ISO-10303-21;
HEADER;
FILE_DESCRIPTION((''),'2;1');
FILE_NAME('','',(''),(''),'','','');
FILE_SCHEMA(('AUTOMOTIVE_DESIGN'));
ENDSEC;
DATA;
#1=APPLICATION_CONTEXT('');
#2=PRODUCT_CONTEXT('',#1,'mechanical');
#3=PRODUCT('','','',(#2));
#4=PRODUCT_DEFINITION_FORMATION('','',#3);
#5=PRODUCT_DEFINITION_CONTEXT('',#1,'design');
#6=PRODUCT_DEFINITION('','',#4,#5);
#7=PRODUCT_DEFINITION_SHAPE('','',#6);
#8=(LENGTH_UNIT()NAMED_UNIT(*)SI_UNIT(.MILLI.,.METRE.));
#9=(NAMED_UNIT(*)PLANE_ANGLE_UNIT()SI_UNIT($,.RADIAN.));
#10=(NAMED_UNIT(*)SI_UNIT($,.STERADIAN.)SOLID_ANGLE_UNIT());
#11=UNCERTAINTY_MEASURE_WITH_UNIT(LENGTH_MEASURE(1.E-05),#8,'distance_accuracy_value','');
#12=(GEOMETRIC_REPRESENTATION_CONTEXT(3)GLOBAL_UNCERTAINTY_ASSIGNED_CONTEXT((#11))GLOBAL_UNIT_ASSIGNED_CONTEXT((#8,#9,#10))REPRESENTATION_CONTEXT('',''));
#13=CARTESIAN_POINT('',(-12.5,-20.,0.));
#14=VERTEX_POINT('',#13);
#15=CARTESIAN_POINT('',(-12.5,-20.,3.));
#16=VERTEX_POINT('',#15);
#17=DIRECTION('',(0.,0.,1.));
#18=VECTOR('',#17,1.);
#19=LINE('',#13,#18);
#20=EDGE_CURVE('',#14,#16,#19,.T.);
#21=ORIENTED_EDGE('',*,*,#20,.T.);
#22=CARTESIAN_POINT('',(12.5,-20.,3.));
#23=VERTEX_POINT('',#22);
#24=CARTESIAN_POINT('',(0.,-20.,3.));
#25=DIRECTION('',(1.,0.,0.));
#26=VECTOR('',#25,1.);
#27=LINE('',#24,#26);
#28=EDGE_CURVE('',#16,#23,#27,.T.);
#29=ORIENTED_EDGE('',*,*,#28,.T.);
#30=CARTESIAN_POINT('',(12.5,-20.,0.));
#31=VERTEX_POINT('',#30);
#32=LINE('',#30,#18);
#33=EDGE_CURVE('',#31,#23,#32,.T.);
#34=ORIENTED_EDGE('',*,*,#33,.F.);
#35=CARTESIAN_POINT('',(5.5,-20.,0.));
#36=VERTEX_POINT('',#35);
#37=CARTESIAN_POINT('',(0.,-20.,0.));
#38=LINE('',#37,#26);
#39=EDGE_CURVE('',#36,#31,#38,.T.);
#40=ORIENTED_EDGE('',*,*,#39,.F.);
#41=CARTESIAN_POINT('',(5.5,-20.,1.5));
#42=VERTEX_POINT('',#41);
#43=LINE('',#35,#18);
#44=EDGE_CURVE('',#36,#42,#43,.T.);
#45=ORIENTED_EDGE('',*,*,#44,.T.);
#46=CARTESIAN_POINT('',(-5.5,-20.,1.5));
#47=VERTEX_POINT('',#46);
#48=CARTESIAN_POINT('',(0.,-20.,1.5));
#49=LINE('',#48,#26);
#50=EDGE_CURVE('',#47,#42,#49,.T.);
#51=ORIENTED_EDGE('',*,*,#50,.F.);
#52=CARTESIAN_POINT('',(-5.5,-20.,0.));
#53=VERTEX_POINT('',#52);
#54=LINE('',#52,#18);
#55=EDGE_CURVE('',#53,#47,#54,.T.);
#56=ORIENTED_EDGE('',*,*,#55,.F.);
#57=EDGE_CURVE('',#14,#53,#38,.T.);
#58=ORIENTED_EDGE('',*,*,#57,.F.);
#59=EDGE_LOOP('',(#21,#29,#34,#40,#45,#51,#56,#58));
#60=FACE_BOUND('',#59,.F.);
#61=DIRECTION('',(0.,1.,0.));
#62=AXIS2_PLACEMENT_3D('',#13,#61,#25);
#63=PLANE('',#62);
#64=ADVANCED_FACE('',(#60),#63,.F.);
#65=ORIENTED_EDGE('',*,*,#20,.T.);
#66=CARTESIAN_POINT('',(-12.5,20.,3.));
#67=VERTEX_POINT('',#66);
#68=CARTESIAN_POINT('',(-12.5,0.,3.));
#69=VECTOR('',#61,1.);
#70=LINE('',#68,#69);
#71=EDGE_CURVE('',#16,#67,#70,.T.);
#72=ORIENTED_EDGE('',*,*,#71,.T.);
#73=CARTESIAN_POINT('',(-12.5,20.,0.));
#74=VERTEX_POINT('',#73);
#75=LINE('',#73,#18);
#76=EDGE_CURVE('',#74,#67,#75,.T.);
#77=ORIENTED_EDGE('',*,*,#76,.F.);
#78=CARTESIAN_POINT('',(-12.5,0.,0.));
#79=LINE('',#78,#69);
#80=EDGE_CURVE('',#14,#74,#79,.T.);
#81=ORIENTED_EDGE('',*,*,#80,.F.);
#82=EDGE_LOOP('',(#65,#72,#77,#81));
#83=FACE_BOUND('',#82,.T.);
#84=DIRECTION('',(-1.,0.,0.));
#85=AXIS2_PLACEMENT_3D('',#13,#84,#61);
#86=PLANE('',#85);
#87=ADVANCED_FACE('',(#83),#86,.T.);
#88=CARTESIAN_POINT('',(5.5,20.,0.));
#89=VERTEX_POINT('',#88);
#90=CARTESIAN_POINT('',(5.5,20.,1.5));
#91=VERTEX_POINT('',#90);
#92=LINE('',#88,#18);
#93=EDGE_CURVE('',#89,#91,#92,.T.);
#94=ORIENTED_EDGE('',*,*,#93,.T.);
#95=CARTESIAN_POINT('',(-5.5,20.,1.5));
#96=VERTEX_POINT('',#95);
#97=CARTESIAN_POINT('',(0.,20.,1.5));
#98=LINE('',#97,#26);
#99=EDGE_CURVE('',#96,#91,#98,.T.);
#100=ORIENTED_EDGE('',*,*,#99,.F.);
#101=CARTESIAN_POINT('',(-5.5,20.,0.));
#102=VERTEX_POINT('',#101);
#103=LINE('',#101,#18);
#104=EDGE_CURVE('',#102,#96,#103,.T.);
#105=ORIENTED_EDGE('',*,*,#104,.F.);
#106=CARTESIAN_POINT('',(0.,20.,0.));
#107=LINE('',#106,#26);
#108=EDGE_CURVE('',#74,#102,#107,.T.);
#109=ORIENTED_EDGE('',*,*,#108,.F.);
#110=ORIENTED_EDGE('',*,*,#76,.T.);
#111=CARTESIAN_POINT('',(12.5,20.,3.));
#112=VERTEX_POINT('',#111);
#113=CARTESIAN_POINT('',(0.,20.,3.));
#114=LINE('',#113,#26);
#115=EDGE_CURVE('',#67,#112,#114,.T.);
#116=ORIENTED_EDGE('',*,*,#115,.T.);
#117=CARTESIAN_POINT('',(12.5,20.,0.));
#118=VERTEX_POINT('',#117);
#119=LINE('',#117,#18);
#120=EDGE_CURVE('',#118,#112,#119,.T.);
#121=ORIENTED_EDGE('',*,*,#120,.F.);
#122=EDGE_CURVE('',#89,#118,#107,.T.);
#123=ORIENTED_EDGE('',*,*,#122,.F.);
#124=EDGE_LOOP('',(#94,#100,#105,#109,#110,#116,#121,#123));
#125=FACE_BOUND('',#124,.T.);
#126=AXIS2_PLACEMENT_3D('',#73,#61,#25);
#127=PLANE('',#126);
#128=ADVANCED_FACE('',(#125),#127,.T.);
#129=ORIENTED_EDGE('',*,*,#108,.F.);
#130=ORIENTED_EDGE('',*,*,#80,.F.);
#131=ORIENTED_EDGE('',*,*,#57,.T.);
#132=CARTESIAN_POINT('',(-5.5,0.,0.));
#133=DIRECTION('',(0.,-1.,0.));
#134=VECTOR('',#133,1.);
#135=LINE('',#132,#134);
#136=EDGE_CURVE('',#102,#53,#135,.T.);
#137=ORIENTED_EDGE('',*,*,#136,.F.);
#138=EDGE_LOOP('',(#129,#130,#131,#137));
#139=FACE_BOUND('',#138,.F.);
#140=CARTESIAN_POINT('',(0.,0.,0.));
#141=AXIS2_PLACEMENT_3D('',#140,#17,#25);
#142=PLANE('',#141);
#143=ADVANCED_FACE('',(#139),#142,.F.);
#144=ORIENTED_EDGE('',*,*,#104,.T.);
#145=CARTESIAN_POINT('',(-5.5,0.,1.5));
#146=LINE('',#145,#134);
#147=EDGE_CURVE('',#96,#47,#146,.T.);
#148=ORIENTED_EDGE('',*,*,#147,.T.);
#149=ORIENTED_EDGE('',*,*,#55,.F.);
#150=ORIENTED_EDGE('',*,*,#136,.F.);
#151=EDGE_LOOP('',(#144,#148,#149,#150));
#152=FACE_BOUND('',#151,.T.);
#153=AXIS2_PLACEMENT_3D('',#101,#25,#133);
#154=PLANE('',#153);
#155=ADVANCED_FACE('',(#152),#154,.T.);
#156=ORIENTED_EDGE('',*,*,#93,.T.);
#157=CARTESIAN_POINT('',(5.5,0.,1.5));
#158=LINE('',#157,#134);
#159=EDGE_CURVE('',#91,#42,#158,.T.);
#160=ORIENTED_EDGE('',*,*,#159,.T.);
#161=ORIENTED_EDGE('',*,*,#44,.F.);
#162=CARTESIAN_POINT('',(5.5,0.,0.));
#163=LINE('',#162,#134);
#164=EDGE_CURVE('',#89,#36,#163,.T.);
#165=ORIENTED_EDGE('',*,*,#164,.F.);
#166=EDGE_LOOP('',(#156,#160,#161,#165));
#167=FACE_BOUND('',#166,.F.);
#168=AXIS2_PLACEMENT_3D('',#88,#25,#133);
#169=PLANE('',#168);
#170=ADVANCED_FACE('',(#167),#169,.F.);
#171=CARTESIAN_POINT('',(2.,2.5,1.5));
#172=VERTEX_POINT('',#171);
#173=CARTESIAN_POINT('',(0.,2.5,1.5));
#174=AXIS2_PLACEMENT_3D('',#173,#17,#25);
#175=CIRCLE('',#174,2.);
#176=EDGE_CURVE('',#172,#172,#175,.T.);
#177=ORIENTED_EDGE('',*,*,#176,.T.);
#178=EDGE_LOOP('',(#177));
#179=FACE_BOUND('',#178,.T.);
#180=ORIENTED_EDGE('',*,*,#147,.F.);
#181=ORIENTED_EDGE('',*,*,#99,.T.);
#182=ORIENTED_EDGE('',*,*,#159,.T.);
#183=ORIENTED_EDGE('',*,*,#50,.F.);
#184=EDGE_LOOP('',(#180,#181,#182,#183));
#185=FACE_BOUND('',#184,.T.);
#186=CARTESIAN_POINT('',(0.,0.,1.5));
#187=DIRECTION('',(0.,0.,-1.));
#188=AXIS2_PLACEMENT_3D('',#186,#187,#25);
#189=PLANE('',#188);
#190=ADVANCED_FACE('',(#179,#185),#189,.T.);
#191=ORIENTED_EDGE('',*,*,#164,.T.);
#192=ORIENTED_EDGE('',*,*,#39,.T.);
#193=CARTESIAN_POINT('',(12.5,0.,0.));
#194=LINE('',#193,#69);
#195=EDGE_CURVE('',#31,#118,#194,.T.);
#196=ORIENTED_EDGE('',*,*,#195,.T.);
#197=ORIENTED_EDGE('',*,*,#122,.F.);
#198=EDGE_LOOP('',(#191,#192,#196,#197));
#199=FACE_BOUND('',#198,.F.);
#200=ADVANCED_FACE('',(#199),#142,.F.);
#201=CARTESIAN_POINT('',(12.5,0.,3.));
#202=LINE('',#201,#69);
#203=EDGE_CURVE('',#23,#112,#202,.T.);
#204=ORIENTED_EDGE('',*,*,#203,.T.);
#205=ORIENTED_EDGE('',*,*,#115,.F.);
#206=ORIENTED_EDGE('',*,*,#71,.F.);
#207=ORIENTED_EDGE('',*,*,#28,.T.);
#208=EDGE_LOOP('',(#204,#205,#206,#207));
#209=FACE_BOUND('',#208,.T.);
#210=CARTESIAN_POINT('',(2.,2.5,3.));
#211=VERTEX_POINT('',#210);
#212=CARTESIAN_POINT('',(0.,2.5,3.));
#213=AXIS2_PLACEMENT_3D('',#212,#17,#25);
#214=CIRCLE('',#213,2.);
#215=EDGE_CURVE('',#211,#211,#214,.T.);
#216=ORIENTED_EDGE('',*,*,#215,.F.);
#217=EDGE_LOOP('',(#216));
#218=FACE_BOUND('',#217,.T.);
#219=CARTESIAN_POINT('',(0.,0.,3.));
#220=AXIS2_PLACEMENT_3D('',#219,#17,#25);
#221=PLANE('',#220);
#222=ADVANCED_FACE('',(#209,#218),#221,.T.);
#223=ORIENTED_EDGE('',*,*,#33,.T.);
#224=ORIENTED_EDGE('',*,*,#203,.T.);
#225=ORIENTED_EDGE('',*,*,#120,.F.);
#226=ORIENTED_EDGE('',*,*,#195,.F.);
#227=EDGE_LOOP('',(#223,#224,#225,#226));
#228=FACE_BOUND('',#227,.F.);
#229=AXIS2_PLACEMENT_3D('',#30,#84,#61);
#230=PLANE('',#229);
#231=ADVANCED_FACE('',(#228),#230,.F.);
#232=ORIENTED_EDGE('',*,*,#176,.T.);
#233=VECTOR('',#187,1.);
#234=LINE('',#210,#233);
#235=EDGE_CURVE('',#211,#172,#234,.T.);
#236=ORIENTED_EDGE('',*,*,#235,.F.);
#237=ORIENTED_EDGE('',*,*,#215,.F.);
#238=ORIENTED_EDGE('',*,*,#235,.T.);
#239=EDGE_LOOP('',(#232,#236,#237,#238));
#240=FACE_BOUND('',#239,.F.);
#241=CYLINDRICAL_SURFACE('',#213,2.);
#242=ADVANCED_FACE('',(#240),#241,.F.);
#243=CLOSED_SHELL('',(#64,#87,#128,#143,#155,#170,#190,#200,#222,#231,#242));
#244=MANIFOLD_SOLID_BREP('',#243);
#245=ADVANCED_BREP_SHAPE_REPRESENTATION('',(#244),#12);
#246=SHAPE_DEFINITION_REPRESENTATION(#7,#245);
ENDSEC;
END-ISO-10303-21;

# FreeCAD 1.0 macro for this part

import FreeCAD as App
import Part
import Sketcher
Q = App.Units.Quantity

doc = App.newDocument("Part")
body = doc.addObject("PartDesign::Body", "Body")

sketch1 = body.newObject("Sketcher::SketchObject", "Sketch")
sketch1.AttachmentSupport = (doc.getObject("XY_Plane"), [""])
sketch1.MapMode = "FlatFace"
sketch1.addGeometry([
    Part.LineSegment(App.Vector(-12, 20, 0), App.Vector(-12, -20, 0)),
    Part.LineSegment(App.Vector(-12, -20, 0), App.Vector(12, -20, 0)),
    Part.LineSegment(App.Vector(12, -20, 0), App.Vector(12, 20, 0)),
    Part.LineSegment(App.Vector(12, 20, 0), App.Vector(-12, 20, 0)),
], False)
sketch1.addConstraint([
    Sketcher.Constraint("Coincident", 0, 2, 1, 1),
    Sketcher.Constraint("Coincident", 1, 2, 2, 1),
    Sketcher.Constraint("Coincident", 2, 2, 3, 1),
    Sketcher.Constraint("Coincident", 3, 2, 0, 1),
    Sketcher.Constraint("Vertical", 0),
    Sketcher.Constraint("Horizontal", 1),
    Sketcher.Constraint("Vertical", 2),
    Sketcher.Constraint("Horizontal", 3),
    Sketcher.Constraint("Symmetric", 0, 2, 2, 2, -1, 1),
    Sketcher.Constraint("DistanceX", 1, 1, 1, 2, Q("25 mm")),
    Sketcher.Constraint("DistanceY", 0, 2, 0, 1, Q("40 mm")),
])
pad1 = body.newObject("PartDesign::Pad", "Pad")
pad1.Profile = sketch1
pad1.Length = 3

sketch2 = body.newObject("Sketcher::SketchObject", "Sketch001")
sketch2.AttachmentSupport = (doc.getObject("XY_Plane"), [""])
sketch2.MapMode = "FlatFace"
sketch2.addGeometry([
    Part.LineSegment(App.Vector(-6, -20, 0), App.Vector(-6, 20, 0)),
    Part.LineSegment(App.Vector(-6, 20, 0), App.Vector(6, 20, 0)),
    Part.LineSegment(App.Vector(6, 20, 0), App.Vector(6, -20, 0)),
    Part.LineSegment(App.Vector(6, -20, 0), App.Vector(-6, -20, 0)),
], False)
sketch2.addConstraint([
    Sketcher.Constraint("Coincident", 0, 2, 1, 1),
    Sketcher.Constraint("Coincident", 1, 2, 2, 1),
    Sketcher.Constraint("Coincident", 2, 2, 3, 1),
    Sketcher.Constraint("Coincident", 3, 2, 0, 1),
    Sketcher.Constraint("Vertical", 0),
    Sketcher.Constraint("Horizontal", 1),
    Sketcher.Constraint("Vertical", 2),
    Sketcher.Constraint("Horizontal", 3),
    Sketcher.Constraint("Symmetric", 0, 2, 2, 2, -1, 1),
    Sketcher.Constraint("DistanceX", 1, 1, 1, 2, Q("11 mm")),
    Sketcher.Constraint("DistanceY", 0, 1, 0, 2, Q("40 mm")),
])
pocket1 = body.newObject("PartDesign::Pocket", "Pocket")
pocket1.Profile = sketch2
pocket1.Length = 1.5
pocket1.Reversed = True

sketch3 = body.newObject("Sketcher::SketchObject", "Sketch002")
sketch3.AttachmentSupport = (doc.getObject("XY_Plane"), [""])
sketch3.MapMode = "FlatFace"
sketch3.AttachmentOffset = App.Placement(App.Vector(0, 0, 3), App.Rotation())
sketch3.addGeometry(Part.Circle(App.Vector(0, 2.5, 0), App.Vector(0, 0, 1), 2), False)
sketch3.addConstraint([
    Sketcher.Constraint("PointOnObject", 0, 3, -2),
    Sketcher.Constraint("Diameter", 0, Q("4 mm")),
    Sketcher.Constraint("DistanceY", -1, 1, 0, 3, Q("2.5 mm")),
])
pocket2 = body.newObject("PartDesign::Pocket", "Pocket001")
pocket2.Profile = sketch3
pocket2.Type = "ThroughAll"

doc.recompute()
